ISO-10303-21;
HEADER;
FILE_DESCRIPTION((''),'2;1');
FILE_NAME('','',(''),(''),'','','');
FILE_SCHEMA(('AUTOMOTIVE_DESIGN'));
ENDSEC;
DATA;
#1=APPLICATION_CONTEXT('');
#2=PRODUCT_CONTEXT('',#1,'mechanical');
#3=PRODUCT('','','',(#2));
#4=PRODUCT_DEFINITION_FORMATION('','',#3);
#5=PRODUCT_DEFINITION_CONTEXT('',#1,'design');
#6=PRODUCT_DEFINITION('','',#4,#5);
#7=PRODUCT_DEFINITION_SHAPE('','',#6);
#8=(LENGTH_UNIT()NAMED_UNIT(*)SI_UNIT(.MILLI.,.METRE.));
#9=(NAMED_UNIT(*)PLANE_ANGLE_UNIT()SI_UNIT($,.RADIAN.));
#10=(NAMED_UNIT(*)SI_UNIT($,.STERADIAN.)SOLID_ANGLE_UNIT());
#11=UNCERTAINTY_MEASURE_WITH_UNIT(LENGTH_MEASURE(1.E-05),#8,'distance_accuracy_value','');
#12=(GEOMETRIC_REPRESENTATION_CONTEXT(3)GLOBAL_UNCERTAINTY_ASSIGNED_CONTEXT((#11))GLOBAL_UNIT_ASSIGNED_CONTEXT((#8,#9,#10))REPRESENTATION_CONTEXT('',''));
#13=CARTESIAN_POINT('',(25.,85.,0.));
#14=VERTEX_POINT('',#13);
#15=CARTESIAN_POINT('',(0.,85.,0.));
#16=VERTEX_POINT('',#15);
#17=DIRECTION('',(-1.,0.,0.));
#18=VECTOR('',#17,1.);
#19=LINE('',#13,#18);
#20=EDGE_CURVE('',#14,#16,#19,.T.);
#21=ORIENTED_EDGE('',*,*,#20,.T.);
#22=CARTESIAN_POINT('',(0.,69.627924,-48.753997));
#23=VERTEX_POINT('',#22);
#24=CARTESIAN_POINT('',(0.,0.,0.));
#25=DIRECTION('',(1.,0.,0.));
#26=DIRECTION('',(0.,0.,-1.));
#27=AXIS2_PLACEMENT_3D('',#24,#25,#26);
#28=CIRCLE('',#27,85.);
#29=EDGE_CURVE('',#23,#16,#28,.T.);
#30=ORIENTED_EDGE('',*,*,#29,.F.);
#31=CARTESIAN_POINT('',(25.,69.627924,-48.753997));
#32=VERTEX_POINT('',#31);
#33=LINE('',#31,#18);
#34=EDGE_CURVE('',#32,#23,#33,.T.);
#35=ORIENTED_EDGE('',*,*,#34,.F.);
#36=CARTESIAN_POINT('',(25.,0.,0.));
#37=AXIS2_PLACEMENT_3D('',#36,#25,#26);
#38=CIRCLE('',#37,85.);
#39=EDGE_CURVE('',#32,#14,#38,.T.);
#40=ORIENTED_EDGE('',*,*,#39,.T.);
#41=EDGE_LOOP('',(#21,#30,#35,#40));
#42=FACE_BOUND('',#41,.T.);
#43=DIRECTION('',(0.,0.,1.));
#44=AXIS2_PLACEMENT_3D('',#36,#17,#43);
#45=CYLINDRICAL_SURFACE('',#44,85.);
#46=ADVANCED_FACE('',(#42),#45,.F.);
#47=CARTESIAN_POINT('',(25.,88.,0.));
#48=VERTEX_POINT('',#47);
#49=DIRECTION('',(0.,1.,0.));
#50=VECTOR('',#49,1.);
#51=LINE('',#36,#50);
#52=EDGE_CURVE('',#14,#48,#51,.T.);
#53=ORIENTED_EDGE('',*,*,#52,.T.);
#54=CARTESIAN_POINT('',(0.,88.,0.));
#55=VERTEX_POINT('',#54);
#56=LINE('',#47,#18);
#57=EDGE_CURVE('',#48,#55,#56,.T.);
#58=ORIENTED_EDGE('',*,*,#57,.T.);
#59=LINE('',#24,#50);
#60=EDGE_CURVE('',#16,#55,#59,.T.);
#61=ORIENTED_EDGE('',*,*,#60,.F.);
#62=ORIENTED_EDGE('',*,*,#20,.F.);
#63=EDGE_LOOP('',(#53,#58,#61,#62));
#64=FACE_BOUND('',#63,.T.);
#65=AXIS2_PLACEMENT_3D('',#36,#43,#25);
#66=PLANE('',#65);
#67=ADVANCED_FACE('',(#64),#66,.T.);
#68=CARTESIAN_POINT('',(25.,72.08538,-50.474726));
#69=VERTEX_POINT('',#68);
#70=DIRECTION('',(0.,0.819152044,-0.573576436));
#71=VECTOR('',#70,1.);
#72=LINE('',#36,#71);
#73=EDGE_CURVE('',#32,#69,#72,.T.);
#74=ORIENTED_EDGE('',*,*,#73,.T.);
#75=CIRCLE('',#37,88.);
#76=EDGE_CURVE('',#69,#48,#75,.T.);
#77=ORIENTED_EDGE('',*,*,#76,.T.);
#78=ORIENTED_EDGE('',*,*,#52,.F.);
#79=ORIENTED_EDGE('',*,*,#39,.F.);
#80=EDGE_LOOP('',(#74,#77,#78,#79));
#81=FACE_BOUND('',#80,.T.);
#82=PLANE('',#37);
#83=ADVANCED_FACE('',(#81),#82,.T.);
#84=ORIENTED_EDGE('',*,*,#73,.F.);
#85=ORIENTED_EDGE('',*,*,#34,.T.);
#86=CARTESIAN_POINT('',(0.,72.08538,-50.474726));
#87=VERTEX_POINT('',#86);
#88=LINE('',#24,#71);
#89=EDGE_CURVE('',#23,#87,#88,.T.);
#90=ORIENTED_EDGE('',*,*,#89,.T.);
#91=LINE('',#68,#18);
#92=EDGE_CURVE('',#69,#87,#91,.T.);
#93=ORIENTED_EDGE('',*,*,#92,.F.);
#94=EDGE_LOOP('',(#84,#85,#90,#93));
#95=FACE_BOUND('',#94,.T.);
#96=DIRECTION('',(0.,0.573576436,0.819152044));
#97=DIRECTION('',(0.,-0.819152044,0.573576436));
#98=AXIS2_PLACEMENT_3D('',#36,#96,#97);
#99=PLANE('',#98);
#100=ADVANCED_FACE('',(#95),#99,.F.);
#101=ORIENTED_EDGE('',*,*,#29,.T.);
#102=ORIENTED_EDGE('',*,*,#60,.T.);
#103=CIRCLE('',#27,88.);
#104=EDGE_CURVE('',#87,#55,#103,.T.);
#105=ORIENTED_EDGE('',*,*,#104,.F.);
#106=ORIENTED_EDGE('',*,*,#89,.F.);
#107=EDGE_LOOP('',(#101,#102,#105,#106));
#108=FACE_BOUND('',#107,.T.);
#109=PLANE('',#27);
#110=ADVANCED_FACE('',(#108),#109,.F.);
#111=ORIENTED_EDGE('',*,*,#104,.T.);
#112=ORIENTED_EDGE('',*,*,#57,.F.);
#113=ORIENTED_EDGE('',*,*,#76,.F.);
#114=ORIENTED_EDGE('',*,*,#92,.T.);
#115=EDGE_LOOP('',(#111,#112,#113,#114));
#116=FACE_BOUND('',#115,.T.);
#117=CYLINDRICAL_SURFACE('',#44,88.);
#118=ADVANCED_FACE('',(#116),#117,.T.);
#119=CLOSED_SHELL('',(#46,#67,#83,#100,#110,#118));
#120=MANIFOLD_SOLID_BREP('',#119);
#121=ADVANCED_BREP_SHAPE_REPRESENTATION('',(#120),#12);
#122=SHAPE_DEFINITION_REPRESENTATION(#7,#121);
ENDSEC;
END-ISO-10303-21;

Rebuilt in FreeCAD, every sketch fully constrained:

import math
import FreeCAD as App
import Part
import Sketcher
Q = App.Units.Quantity

doc = App.newDocument("Part")
params = doc.addObject("Spreadsheet::Sheet", "Params")
for row, (alias, value) in enumerate([
    ("sketch1_radius", "85 mm"),
    ("sketch1_radius2", "88 mm"),
    ("pad1_length", "25 mm"),
], start=1):
    params.set(f"A{row}", alias)
    params.set(f"B{row}", "=" + value)
    params.setAlias(f"B{row}", alias)

body = doc.addObject("PartDesign::Body", "Body")

# Sketch on YZ plane
sketch1 = body.newObject("Sketcher::SketchObject", "Sketch")
sketch1.AttachmentSupport = (doc.getObject("YZ_Plane"), [""])
sketch1.MapMode = "FlatFace"
sketch1.addGeometry(Part.LineSegment(App.Vector(88, 0, 0), App.Vector(85, 0, 0)), False)
sketch1.addGeometry(Part.ArcOfCircle(Part.Circle(App.Vector(0, 0, 0), App.Vector(0, 0, 1), 85), math.radians(-35), math.radians(0)), False)
sketch1.addGeometry(Part.LineSegment(App.Vector(69.6, -48.8, 0), App.Vector(72.1, -50.5, 0)), False)
sketch1.addGeometry(Part.ArcOfCircle(Part.Circle(App.Vector(0, 0, 0), App.Vector(0, 0, 1), 88), math.radians(-35), math.radians(0)), False)
sketch1.addConstraint(Sketcher.Constraint("Coincident", 0, 2, 1, 2))
sketch1.addConstraint(Sketcher.Constraint("Coincident", 1, 1, 2, 1))
sketch1.addConstraint(Sketcher.Constraint("Coincident", 2, 2, 3, 1))
sketch1.addConstraint(Sketcher.Constraint("Coincident", 3, 2, 0, 1))
sketch1.addConstraint(Sketcher.Constraint("Horizontal", 0))
sketch1.addConstraint(Sketcher.Constraint("Coincident", 1, 3, -1, 1))
sketch1.addConstraint(Sketcher.Constraint("Coincident", 3, 3, -1, 1))
sketch1.addConstraint(Sketcher.Constraint("PointOnObject", 0, 2, -1))
sketch1.addConstraint(Sketcher.Constraint("Radius", 1, Q("85 mm")))
sketch1.addConstraint(Sketcher.Constraint("Radius", 3, Q("88 mm")))
sketch1.addConstraint(Sketcher.Constraint("Angle", 2, Q("-35 deg")))
sketch1.addConstraint(Sketcher.Constraint("DistanceX", -1, 1, 2, 2, Q("72.08538 mm")))
sketch1.setExpression("Constraints[8]", "Params.sketch1_radius")
sketch1.setExpression("Constraints[9]", "Params.sketch1_radius2")
pad1 = body.newObject("PartDesign::Pad", "Pad")
pad1.Profile = sketch1
pad1.setExpression("Length", "Params.pad1_length")

doc.recompute()
